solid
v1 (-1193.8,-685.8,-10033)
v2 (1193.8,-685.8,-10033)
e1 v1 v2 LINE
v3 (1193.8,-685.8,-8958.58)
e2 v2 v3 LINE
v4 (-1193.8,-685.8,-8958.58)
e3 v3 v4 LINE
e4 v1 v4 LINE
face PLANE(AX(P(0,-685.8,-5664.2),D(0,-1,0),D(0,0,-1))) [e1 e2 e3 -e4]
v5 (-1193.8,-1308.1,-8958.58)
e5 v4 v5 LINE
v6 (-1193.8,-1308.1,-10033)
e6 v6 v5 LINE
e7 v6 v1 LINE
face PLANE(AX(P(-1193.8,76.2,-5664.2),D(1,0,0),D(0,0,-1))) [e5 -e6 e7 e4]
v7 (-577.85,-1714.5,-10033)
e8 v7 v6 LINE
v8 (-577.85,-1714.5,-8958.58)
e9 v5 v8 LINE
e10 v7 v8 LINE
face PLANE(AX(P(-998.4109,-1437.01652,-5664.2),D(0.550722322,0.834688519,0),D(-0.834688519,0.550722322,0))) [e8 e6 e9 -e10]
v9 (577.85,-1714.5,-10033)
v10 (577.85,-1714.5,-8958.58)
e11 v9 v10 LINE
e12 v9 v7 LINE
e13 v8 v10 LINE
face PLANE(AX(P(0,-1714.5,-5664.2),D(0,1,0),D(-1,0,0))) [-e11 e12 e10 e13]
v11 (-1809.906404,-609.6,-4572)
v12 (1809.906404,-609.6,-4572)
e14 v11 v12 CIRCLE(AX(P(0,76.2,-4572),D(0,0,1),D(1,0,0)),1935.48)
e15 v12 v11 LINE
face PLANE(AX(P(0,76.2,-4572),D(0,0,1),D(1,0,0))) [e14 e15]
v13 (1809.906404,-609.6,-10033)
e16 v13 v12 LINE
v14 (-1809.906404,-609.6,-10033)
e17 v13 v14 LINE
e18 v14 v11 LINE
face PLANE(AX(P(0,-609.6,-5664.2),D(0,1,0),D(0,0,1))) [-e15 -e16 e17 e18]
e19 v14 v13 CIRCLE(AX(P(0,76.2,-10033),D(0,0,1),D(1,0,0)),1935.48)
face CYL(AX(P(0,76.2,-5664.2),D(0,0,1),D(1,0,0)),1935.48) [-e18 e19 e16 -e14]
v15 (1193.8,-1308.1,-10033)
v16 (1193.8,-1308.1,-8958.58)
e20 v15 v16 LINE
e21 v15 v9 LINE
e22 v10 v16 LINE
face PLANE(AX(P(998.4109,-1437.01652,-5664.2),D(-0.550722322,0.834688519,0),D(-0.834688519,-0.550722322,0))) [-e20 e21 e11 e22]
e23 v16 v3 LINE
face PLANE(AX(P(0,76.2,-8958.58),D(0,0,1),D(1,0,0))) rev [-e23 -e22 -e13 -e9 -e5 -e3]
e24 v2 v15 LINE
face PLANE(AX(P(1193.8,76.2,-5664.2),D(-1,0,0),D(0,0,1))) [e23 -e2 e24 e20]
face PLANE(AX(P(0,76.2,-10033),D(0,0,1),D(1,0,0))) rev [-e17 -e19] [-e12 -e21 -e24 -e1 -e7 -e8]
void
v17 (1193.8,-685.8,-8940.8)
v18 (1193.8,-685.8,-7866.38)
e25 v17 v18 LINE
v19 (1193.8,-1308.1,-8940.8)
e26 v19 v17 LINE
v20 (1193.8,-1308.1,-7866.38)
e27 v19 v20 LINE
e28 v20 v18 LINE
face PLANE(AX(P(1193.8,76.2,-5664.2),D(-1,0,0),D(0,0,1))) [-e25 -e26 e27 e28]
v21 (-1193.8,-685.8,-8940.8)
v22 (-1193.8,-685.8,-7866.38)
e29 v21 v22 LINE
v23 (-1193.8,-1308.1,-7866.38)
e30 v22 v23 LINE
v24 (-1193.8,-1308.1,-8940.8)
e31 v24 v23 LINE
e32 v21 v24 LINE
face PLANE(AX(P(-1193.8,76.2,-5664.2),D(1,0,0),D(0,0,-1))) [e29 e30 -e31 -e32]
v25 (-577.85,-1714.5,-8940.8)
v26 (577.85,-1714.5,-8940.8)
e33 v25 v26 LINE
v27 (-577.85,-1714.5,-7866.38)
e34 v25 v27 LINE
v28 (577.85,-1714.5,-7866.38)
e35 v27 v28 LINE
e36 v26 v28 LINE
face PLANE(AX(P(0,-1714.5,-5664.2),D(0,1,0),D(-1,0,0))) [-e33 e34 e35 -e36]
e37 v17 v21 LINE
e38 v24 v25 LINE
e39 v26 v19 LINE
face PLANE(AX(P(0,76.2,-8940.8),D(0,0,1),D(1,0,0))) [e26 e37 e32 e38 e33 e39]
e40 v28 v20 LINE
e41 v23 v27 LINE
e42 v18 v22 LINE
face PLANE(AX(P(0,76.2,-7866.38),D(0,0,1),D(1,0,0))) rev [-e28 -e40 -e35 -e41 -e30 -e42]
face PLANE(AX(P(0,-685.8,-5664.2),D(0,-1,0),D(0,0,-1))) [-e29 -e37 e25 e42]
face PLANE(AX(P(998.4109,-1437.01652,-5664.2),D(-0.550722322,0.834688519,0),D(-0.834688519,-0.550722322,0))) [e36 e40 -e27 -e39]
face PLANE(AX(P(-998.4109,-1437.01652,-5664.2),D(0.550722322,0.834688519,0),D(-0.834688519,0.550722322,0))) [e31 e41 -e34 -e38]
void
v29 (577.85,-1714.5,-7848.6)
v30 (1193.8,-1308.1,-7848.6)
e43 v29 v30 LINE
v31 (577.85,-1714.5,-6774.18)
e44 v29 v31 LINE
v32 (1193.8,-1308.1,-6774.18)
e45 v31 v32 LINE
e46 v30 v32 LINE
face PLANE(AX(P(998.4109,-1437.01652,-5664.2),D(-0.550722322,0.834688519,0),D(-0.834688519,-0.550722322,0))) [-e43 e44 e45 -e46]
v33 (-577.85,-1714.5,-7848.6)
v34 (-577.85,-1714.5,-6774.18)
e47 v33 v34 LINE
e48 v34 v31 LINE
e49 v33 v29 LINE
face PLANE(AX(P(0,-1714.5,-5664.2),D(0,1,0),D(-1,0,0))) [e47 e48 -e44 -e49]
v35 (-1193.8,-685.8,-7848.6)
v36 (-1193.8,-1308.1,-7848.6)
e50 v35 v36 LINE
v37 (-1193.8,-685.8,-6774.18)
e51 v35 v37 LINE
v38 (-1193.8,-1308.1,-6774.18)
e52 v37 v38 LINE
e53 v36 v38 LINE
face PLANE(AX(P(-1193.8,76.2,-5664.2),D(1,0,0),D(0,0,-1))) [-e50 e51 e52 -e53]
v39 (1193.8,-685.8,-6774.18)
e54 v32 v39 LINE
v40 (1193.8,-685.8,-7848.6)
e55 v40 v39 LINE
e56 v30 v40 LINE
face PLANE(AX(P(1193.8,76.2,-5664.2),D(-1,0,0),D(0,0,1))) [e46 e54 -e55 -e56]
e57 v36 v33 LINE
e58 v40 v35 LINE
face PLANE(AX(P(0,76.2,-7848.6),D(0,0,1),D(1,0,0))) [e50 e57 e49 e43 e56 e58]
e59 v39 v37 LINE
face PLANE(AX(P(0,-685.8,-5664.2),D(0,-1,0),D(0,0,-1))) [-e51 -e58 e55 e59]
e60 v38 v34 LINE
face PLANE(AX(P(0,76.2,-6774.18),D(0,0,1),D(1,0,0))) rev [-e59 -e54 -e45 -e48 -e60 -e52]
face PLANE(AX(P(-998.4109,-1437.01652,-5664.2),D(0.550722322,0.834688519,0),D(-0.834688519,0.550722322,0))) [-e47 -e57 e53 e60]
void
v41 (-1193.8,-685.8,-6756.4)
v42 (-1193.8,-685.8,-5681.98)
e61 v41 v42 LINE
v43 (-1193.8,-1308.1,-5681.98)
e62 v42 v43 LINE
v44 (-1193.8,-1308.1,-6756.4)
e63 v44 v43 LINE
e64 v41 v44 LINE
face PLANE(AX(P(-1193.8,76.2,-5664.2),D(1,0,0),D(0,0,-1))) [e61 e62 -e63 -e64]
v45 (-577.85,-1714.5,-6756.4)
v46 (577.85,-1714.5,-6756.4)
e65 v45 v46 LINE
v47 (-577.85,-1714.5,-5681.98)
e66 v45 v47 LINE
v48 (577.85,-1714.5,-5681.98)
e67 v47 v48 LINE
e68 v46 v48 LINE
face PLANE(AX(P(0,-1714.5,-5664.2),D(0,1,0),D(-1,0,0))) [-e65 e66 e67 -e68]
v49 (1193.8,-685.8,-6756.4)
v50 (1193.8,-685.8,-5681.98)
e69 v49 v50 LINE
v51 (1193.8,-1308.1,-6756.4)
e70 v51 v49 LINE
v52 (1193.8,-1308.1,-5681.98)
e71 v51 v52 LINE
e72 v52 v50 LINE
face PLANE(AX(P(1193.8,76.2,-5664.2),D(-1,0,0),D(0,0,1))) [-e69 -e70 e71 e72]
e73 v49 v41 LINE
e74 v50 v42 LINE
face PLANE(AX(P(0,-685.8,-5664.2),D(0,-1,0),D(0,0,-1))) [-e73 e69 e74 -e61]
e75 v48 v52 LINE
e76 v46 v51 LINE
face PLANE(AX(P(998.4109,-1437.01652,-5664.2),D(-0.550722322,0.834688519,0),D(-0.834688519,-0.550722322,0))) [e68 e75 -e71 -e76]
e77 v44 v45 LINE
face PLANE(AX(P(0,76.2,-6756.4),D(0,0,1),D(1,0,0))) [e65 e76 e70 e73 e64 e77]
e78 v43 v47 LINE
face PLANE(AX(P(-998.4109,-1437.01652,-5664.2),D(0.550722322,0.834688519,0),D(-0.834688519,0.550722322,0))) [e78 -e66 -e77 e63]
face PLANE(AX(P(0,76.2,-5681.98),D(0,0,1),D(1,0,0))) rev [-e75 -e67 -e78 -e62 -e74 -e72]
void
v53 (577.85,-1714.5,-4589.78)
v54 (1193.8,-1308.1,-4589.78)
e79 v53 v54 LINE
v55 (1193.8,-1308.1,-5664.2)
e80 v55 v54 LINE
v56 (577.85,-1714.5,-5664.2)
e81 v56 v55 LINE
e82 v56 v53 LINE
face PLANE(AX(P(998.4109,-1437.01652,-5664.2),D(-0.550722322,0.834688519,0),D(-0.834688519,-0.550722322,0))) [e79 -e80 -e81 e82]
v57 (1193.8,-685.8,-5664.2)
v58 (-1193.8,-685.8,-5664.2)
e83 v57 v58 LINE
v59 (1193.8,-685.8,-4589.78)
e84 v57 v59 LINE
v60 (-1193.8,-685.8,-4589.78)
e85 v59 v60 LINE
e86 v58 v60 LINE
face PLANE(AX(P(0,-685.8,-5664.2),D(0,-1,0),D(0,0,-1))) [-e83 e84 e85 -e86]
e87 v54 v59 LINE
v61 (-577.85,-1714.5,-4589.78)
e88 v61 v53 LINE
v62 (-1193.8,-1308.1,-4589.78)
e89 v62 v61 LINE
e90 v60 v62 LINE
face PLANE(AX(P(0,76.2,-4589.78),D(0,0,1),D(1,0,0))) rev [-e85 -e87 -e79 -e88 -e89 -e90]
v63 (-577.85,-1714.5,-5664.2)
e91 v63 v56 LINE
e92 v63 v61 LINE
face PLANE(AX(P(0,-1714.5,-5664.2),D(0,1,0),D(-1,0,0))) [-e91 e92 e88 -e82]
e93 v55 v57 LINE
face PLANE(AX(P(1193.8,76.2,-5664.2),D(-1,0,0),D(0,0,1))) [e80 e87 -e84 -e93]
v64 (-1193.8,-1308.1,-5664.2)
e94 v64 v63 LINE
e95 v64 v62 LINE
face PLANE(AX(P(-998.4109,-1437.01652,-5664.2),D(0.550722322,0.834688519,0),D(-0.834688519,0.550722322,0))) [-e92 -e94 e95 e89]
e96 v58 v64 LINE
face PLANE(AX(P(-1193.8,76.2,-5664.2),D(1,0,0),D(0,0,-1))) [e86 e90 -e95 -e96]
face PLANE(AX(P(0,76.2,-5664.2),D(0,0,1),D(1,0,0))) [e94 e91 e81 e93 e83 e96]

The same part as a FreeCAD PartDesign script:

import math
import FreeCAD as App
import Part
import Sketcher
from FreeCAD import Vector
Q = App.Units.Quantity


def add_polygon(sketch, points):
    """Adds a closed chain of lines whose ends are joined by coincident constraints."""
    first, n = sketch.GeometryCount, len(points)
    for a, b in zip(points, points[1:] + points[:1]):
        sketch.addGeometry(Part.LineSegment(App.Vector(*a, 0), App.Vector(*b, 0)), False)
    for i in range(n):
        sketch.addConstraint(Sketcher.Constraint("Coincident", first + i, 2, first + (i + 1) % n, 1))

doc = App.newDocument("Part")
body = doc.addObject("PartDesign::Body", "Body")

# Sketch on XY plane
sketch1 = body.newObject("Sketcher::SketchObject", "Sketch")
sketch1.AttachmentSupport = (doc.getObject("XY_Plane"), [""])
sketch1.MapMode = "FlatFace"
sketch1.AttachmentOffset = App.Placement(Vector(0, 0, -180 * 25.4), App.Rotation())
sketch1.addGeometry(Part.ArcOfCircle(Part.Circle(Vector(0, 0, 0), Vector(0, 0, 1), 1935), math.radians(-159), math.radians(-21)), False)  # 0
sketch1.addGeometry(Part.LineSegment(Vector(1810, -686, 0), Vector(-1810, -686, 0)), False)  # 1
add_polygon(sketch1, [(-578, -1791), (-1194, -1384), (-1194, -762), (1194, -762), (1194, -1384), (578, -1791)])  # lines 2-7
sketch1.addConstraint([
    Sketcher.Constraint("Coincident", 0, 1, 1, 2),
    Sketcher.Constraint("Coincident", 1, 1, 0, 2),
    Sketcher.Constraint("Horizontal", 1),
    Sketcher.Constraint("Vertical", 3),
    Sketcher.Constraint("Horizontal", 4),
    Sketcher.Constraint("Vertical", 5),
    Sketcher.Constraint("Horizontal", 7),
    Sketcher.Constraint("Coincident", 0, 3, -1, 1),
    Sketcher.Constraint("Symmetric", 2, 2, 5, 2, -2),
    Sketcher.Constraint("Equal", 2, 6),
    Sketcher.Constraint("Radius", 0, Q("76.2 in")),
    Sketcher.Constraint("DistanceX", 4, 1, 4, 2, Q("94 in")),
    Sketcher.Constraint("DistanceX", 7, 2, 7, 1, Q("45.5 in")),
    Sketcher.Constraint("DistanceY", 3, 1, 3, 2, Q("24.5 in")),
    Sketcher.Constraint("DistanceY", 1, 1, -1, 1, Q("27 in")),
    Sketcher.Constraint("DistanceY", 3, 2, -1, 1, Q("30 in")),
    Sketcher.Constraint("DistanceY", 6, 2, 5, 2, Q("16 in")),
])
pad1 = body.newObject("PartDesign::Pad", "Pad")
pad1.Profile = sketch1
pad1.Length = Q("43 in")
pad1.Reversed = True

# Sketch on XY plane
sketch2 = body.newObject("Sketcher::SketchObject", "Sketch001")
sketch2.AttachmentSupport = (doc.getObject("XY_Plane"), [""])
sketch2.MapMode = "FlatFace"
sketch2.AttachmentOffset = App.Placement(Vector(0, 0, -180 * 25.4), App.Rotation())
add_polygon(sketch2, [(1194, -762), (-1194, -762), (-1194, -1384), (-578, -1791), (578, -1791), (1194, -1384)])  # lines 0-5
sketch2.addConstraint([
    Sketcher.Constraint("Horizontal", 0),
    Sketcher.Constraint("Vertical", 1),
    Sketcher.Constraint("Horizontal", 3),
    Sketcher.Constraint("Vertical", 5),
    Sketcher.Constraint("Symmetric", 1, 2, 4, 2, -2),
    Sketcher.Constraint("Equal", 2, 4),
    Sketcher.Constraint("DistanceX", 0, 2, 0, 1, Q("94 in")),
    Sketcher.Constraint("DistanceX", 3, 1, 3, 2, Q("45.5 in")),
    Sketcher.Constraint("DistanceY", 1, 2, 1, 1, Q("24.5 in")),
    Sketcher.Constraint("DistanceY", 0, 2, -1, 1, Q("30 in")),
    Sketcher.Constraint("DistanceY", 2, 2, 1, 2, Q("16 in")),
])
pad2 = body.newObject("PartDesign::Pad", "Pad001")
pad2.Profile = sketch2
pad2.Length = Q("0.7 in")
pad2.Reversed = True
doc.recompute()

linearpattern = body.newObject("PartDesign::LinearPattern", "LinearPattern")
linearpattern.Originals = [pad1, pad2]
linearpattern.Direction = (doc.getObject("Z_Axis"), [""])
linearpattern.Mode = "offset"
linearpattern.Offset = Q("43 in")
linearpattern.Occurrences = 5
linearpattern.Reversed = True
body.Tip = linearpattern
body2 = doc.addObject("PartDesign::Body", "Body001")
doc.recompute()

body.Placement = App.Placement(Vector(0, 76.2, 0), App.Rotation(Vector(0, 0, 1), 0))
boolean = body2.newObject("PartDesign::Boolean", "Boolean")
boolean.Type = "Fuse"
boolean.addObjects([body])

doc.recompute()
